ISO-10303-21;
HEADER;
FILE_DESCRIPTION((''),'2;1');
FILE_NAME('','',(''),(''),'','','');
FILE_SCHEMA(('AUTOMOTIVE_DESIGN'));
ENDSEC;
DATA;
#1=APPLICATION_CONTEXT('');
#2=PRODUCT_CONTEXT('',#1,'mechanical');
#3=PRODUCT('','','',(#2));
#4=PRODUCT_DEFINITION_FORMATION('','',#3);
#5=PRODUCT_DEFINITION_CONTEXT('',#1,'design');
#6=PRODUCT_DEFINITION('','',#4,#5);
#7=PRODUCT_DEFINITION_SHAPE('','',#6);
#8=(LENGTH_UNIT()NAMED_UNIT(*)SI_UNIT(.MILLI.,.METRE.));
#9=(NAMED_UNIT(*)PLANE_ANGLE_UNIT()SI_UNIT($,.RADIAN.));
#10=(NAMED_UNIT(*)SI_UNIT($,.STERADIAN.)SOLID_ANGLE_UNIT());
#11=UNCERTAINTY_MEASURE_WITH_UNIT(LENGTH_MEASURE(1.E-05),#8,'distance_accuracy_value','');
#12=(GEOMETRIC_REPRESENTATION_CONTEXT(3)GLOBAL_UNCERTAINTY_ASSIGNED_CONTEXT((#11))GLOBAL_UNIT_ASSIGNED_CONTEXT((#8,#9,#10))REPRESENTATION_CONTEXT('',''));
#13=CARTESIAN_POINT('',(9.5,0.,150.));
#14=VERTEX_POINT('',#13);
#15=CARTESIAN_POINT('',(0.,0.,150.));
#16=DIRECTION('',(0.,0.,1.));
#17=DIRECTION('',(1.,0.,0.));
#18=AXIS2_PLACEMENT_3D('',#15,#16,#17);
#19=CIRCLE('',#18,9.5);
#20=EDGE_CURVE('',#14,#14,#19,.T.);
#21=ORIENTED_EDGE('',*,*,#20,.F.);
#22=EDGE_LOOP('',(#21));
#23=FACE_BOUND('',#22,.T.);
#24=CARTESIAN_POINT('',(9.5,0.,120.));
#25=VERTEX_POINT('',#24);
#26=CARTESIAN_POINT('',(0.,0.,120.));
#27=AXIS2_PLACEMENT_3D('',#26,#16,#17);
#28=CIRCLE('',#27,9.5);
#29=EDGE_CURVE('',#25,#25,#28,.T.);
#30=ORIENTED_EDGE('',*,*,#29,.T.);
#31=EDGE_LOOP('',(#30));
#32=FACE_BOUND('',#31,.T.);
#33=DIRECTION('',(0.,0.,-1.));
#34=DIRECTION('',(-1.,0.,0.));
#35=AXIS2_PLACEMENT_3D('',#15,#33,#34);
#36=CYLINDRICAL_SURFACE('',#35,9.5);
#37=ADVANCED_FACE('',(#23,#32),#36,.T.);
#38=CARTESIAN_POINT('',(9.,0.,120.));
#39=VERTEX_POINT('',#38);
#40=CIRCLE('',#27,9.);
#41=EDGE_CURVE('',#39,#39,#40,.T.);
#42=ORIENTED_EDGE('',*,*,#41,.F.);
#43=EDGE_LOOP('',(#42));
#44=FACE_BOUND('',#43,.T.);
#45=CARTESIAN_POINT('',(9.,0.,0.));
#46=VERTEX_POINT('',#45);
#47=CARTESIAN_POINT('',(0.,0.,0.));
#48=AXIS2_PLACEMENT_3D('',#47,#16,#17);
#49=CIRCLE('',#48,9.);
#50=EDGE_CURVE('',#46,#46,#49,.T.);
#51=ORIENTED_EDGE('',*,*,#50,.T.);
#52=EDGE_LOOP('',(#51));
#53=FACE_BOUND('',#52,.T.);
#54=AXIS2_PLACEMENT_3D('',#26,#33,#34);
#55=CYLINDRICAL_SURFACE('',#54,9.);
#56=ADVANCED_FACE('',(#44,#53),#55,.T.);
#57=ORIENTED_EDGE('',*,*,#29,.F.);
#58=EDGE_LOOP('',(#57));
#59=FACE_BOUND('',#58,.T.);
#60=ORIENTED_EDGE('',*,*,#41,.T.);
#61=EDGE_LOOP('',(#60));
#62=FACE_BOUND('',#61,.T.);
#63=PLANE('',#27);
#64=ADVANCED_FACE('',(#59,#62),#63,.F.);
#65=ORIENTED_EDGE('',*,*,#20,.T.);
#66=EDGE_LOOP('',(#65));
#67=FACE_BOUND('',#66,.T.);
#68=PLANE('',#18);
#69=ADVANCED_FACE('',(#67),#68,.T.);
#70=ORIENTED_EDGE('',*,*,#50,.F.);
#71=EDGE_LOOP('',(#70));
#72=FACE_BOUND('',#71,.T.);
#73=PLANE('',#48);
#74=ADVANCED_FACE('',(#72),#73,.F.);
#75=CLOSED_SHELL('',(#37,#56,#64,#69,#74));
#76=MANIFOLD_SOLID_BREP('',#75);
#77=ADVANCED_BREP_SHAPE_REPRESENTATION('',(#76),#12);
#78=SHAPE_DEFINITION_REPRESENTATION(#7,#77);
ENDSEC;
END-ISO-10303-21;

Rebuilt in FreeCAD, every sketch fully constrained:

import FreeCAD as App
import Part
import Sketcher
from FreeCAD import Vector

doc = App.newDocument("Part")
body = doc.addObject("PartDesign::Body", "Body")

sketch1 = body.newObject("Sketcher::SketchObject", "Sketch")
sketch1.AttachmentSupport = (doc.getObject("XY_Plane"), [""])
sketch1.MapMode = "FlatFace"
sketch1.addGeometry(Part.Circle(Vector(0, 0, 0), Vector(0, 0, 1), 9), False)
sketch1.addConstraint([
    Sketcher.Constraint("Coincident", 0, 3, -1, 1),
    Sketcher.Constraint("Diameter", 0, 18.0),
])
pad1 = body.newObject("PartDesign::Pad", "Pad")
pad1.Profile = sketch1
pad1.Length = 120

sketch2 = body.newObject("Sketcher::SketchObject", "Sketch001")
sketch2.AttachmentSupport = (doc.getObject("XY_Plane"), [""])
sketch2.MapMode = "FlatFace"
sketch2.AttachmentOffset = App.Placement(Vector(0, 0, 120), App.Rotation())
sketch2.addGeometry(Part.Circle(Vector(0, 0, 0), Vector(0, 0, 1), 9.5), False)
sketch2.addConstraint([
    Sketcher.Constraint("Coincident", 0, 3, -1, 1),
    Sketcher.Constraint("Diameter", 0, 19.0),
])
pad2 = body.newObject("PartDesign::Pad", "Pad001")
pad2.Profile = sketch2
pad2.Length = 30

doc.recompute()
